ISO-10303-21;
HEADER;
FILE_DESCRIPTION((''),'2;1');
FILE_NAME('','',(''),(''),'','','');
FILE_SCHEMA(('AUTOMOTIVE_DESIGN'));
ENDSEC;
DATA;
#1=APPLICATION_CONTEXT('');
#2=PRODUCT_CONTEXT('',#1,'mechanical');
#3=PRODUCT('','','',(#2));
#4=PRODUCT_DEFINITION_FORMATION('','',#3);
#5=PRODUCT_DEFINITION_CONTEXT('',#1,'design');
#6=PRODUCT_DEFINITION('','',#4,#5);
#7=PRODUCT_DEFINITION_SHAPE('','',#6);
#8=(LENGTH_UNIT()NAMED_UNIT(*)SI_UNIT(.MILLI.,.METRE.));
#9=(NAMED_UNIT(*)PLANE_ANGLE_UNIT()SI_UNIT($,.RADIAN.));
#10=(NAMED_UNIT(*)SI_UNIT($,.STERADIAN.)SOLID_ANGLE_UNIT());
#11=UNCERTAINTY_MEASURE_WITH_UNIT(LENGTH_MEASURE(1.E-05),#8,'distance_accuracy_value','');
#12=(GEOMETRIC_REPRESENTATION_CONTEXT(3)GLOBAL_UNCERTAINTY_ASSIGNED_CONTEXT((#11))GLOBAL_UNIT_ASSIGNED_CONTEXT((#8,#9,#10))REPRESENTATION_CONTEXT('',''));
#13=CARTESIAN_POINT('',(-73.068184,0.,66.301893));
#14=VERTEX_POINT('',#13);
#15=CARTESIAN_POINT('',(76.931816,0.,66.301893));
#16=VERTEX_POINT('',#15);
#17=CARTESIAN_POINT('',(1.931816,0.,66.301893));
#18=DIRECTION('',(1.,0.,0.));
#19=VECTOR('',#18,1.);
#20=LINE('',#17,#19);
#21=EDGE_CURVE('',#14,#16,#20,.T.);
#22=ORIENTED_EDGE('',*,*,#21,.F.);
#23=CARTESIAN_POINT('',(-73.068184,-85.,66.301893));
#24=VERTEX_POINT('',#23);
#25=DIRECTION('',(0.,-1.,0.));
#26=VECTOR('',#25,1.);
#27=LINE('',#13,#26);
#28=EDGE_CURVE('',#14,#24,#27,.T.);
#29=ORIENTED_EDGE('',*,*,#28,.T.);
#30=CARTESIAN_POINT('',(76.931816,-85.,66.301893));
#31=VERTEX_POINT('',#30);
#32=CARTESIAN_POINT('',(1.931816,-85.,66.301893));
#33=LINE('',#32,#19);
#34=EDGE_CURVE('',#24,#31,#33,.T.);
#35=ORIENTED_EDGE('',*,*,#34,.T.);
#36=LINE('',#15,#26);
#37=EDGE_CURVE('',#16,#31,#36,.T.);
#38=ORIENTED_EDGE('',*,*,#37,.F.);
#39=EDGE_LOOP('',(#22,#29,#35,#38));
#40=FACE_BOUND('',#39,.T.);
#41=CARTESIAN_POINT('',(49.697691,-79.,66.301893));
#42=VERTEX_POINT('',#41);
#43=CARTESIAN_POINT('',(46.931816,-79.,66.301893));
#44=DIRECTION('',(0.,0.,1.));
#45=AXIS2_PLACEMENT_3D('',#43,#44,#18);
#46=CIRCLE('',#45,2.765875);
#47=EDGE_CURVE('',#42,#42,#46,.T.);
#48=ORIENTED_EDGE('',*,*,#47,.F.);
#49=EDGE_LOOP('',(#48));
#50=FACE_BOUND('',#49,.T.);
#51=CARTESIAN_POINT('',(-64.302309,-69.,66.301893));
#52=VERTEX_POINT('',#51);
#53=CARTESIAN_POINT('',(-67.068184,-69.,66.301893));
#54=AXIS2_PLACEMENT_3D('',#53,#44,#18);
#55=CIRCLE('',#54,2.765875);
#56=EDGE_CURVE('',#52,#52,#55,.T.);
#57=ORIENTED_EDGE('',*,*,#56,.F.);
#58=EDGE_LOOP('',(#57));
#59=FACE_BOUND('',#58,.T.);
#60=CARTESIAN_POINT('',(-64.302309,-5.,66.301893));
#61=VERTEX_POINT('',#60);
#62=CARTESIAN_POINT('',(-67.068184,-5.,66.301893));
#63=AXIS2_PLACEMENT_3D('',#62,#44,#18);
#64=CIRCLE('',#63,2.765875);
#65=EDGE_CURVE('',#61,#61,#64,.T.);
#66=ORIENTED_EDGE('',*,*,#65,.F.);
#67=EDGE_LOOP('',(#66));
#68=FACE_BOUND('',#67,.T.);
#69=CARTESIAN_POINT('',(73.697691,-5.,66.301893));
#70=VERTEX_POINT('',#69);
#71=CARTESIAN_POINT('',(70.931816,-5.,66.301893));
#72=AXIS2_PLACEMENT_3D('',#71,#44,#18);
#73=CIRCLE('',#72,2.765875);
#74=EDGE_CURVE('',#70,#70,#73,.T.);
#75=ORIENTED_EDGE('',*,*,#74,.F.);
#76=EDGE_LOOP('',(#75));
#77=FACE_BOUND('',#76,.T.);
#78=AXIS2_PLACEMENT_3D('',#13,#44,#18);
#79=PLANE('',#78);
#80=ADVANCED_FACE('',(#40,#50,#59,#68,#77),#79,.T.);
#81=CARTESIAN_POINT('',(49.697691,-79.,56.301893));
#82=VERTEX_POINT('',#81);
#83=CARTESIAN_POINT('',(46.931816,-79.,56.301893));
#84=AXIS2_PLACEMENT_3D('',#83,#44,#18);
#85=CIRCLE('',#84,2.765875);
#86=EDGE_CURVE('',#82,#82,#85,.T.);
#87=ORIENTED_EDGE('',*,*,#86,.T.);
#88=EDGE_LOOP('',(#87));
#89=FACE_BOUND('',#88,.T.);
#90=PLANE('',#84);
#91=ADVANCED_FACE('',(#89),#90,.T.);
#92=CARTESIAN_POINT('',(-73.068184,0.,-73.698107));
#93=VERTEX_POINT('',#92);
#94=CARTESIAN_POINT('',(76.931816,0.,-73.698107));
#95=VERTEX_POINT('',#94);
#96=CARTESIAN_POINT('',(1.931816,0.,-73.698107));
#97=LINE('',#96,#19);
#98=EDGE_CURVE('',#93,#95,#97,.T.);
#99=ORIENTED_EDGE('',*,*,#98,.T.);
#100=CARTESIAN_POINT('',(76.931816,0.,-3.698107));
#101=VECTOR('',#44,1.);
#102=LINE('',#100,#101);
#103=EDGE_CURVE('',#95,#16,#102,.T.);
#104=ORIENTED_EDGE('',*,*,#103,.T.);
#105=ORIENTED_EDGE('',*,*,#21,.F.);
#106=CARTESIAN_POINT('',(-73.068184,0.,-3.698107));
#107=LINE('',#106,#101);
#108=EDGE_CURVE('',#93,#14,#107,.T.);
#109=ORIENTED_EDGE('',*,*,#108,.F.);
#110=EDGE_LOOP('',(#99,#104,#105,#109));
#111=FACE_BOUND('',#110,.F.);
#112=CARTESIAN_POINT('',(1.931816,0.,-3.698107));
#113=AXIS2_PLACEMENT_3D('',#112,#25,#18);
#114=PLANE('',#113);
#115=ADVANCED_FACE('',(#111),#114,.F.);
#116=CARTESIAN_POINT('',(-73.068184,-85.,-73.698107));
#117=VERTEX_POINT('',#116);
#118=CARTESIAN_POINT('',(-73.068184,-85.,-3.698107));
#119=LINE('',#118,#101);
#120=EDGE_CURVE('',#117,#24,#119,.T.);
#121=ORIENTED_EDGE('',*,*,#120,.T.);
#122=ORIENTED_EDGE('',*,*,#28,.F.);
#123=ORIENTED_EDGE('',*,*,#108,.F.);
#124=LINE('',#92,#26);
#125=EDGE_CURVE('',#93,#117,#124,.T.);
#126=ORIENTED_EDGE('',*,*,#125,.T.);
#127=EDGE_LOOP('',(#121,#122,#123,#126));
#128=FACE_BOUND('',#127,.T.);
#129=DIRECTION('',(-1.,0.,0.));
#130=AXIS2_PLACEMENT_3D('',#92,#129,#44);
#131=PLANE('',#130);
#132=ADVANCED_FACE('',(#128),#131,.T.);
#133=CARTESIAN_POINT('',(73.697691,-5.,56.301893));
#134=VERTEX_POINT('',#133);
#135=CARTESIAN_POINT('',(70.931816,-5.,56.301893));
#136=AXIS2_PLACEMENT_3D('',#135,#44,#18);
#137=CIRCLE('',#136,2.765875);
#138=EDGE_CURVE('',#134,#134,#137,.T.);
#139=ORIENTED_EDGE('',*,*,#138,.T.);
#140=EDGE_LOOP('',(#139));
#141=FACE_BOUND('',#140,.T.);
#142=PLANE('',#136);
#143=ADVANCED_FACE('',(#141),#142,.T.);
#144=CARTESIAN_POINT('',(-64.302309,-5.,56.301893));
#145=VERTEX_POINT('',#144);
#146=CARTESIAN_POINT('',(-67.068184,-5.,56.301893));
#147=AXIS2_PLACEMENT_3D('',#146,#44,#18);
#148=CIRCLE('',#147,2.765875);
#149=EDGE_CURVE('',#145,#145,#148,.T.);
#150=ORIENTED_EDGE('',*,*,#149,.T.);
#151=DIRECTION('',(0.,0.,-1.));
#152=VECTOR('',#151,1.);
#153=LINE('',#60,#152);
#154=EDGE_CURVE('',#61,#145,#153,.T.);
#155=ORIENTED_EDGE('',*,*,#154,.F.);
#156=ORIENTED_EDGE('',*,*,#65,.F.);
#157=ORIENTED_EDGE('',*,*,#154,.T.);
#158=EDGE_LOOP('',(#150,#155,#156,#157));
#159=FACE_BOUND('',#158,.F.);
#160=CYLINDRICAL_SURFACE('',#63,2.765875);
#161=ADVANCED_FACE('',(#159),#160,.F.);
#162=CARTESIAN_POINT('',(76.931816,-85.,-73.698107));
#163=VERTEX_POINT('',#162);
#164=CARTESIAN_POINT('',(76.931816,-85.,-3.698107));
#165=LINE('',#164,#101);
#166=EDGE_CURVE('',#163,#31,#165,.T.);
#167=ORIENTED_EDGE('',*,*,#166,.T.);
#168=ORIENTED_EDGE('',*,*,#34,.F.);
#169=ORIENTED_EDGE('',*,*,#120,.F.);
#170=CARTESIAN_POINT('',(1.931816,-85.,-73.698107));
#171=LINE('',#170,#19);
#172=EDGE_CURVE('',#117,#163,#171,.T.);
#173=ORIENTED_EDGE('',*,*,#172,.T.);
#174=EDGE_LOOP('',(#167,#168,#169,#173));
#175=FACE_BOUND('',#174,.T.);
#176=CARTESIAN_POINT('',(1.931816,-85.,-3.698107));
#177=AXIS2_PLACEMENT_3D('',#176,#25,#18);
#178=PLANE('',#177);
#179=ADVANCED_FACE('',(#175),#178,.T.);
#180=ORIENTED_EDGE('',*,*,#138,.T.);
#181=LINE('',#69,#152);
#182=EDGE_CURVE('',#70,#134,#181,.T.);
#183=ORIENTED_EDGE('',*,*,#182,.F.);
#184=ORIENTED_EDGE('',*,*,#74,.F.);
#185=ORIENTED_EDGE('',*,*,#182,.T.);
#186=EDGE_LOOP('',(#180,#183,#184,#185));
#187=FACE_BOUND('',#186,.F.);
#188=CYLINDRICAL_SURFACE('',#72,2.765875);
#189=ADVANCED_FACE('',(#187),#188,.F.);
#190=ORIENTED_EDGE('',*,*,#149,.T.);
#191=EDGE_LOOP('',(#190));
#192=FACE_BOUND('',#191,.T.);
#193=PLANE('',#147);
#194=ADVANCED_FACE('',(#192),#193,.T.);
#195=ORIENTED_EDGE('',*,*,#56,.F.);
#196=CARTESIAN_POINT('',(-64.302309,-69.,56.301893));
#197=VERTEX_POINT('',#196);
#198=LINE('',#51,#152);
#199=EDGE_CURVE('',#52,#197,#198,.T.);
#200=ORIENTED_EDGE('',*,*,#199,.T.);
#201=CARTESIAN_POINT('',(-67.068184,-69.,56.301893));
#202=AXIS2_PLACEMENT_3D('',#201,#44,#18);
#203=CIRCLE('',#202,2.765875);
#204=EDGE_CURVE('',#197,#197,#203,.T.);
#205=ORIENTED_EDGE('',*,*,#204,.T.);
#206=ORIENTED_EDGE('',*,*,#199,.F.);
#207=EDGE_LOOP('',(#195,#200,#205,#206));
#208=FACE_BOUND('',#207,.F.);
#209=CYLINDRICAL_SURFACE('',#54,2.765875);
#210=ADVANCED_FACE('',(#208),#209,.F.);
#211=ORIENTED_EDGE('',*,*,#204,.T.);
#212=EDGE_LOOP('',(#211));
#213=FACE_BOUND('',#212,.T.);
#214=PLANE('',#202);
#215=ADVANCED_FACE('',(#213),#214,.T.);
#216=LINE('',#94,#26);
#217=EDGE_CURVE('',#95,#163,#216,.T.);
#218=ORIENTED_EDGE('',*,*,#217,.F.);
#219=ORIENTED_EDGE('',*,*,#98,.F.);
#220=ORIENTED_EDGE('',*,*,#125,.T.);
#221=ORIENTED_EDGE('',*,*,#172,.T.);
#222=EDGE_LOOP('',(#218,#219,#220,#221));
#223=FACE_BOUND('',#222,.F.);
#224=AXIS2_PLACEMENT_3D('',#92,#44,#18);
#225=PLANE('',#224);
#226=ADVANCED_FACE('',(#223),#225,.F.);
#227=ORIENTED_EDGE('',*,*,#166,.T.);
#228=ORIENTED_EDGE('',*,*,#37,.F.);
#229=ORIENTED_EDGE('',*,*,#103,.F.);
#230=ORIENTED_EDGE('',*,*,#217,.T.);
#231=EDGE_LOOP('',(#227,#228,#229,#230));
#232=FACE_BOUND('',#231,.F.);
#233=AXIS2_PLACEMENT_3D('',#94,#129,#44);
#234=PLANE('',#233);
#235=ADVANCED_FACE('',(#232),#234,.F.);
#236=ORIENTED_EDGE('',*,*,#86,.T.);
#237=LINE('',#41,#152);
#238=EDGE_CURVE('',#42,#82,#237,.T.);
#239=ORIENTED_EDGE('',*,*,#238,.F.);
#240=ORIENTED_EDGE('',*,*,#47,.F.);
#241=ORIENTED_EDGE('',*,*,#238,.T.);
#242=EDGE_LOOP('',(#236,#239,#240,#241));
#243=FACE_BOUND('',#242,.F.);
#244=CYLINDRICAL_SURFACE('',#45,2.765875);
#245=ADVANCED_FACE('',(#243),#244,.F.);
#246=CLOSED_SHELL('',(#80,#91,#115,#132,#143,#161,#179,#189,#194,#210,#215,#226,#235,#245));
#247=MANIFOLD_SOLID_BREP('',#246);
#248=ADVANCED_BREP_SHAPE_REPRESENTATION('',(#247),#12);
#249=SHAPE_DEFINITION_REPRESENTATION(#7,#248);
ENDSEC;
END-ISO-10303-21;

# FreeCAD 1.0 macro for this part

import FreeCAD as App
import Part
import Sketcher

doc = App.newDocument("Part")
body = doc.addObject("PartDesign::Body", "Body")

# Sketch on XZ plane
sketch1 = body.newObject("Sketcher::SketchObject", "Sketch")
sketch1.AttachmentSupport = (doc.getObject("XZ_Plane"), [""])
sketch1.MapMode = "FlatFace"
sketch1.addGeometry(Part.LineSegment(App.Vector(-73.068184, 66.301893, 0), App.Vector(-73.068184, -73.698107, 0)), False)
sketch1.addGeometry(Part.LineSegment(App.Vector(-73.068184, -73.698107, 0), App.Vector(76.931816, -73.698107, 0)), False)
sketch1.addGeometry(Part.LineSegment(App.Vector(76.931816, -73.698107, 0), App.Vector(76.931816, 66.301893, 0)), False)
sketch1.addGeometry(Part.LineSegment(App.Vector(76.931816, 66.301893, 0), App.Vector(-73.068184, 66.301893, 0)), False)
sketch1.addConstraint(Sketcher.Constraint("Coincident", 0, 2, 1, 1))
sketch1.addConstraint(Sketcher.Constraint("Coincident", 1, 2, 2, 1))
sketch1.addConstraint(Sketcher.Constraint("Coincident", 2, 2, 3, 1))
sketch1.addConstraint(Sketcher.Constraint("Coincident", 3, 2, 0, 1))
sketch1.addConstraint(Sketcher.Constraint("Vertical", 0))
sketch1.addConstraint(Sketcher.Constraint("Horizontal", 1))
sketch1.addConstraint(Sketcher.Constraint("Vertical", 2))
sketch1.addConstraint(Sketcher.Constraint("Horizontal", 3))
sketch1.addConstraint(Sketcher.Constraint("DistanceX", 1, 1, 1, 2, 150.0))
sketch1.addConstraint(Sketcher.Constraint("DistanceY", 0, 2, 0, 1, 140.0))
sketch1.addConstraint(Sketcher.Constraint("DistanceX", 0, 2, -1, 1, 73.068184))
sketch1.addConstraint(Sketcher.Constraint("DistanceY", 0, 2, -1, 1, 73.698107))
pad1 = body.newObject("PartDesign::Pad", "Pad")
pad1.Profile = sketch1
pad1.Length = 85

# Sketch on XY plane
sketch2 = body.newObject("Sketcher::SketchObject", "Sketch001")
sketch2.AttachmentSupport = (doc.getObject("XY_Plane"), [""])
sketch2.MapMode = "FlatFace"
sketch2.AttachmentOffset = App.Placement(App.Vector(0, 0, 66.301893), App.Rotation())
sketch2.addGeometry(Part.Circle(App.Vector(-67.068184, -5, 0), App.Vector(0, 0, 1), 2.765875), False)
sketch2.addGeometry(Part.Circle(App.Vector(-67.068184, -69, 0), App.Vector(0, 0, 1), 2.765875), False)
sketch2.addGeometry(Part.Circle(App.Vector(70.931816, -5, 0), App.Vector(0, 0, 1), 2.765875), False)
sketch2.addGeometry(Part.Circle(App.Vector(46.931816, -79, 0), App.Vector(0, 0, 1), 2.765875), False)
sketch2.addConstraint(Sketcher.Constraint("Equal", 0, 1))
sketch2.addConstraint(Sketcher.Constraint("Equal", 1, 2))
sketch2.addConstraint(Sketcher.Constraint("Equal", 2, 3))
sketch2.addConstraint(Sketcher.Constraint("Horizontal", 0, 3, 2, 3))
sketch2.addConstraint(Sketcher.Constraint("Vertical", 0, 3, 1, 3))
sketch2.addConstraint(Sketcher.Constraint("DistanceY", 0, 3, -1, 1, 5.0))
sketch2.addConstraint(Sketcher.Constraint("DistanceY", 1, 3, -1, 1, 69.0))
sketch2.addConstraint(Sketcher.Constraint("DistanceY", 3, 3, -1, 1, 79.0))
sketch2.addConstraint(Sketcher.Constraint("DistanceX", 0, 3, 2, 3, 138.0))
sketch2.addConstraint(Sketcher.Constraint("DistanceX", 3, 3, 2, 3, 24.0))
sketch2.addConstraint(Sketcher.Constraint("Diameter", 0, 5.53175))
sketch2.addConstraint(Sketcher.Constraint("DistanceX", 0, 3, -1, 1, 67.068184))
pocket1 = body.newObject("PartDesign::Pocket", "Pocket")
pocket1.Profile = sketch2
pocket1.Length = 10

doc.recompute()
